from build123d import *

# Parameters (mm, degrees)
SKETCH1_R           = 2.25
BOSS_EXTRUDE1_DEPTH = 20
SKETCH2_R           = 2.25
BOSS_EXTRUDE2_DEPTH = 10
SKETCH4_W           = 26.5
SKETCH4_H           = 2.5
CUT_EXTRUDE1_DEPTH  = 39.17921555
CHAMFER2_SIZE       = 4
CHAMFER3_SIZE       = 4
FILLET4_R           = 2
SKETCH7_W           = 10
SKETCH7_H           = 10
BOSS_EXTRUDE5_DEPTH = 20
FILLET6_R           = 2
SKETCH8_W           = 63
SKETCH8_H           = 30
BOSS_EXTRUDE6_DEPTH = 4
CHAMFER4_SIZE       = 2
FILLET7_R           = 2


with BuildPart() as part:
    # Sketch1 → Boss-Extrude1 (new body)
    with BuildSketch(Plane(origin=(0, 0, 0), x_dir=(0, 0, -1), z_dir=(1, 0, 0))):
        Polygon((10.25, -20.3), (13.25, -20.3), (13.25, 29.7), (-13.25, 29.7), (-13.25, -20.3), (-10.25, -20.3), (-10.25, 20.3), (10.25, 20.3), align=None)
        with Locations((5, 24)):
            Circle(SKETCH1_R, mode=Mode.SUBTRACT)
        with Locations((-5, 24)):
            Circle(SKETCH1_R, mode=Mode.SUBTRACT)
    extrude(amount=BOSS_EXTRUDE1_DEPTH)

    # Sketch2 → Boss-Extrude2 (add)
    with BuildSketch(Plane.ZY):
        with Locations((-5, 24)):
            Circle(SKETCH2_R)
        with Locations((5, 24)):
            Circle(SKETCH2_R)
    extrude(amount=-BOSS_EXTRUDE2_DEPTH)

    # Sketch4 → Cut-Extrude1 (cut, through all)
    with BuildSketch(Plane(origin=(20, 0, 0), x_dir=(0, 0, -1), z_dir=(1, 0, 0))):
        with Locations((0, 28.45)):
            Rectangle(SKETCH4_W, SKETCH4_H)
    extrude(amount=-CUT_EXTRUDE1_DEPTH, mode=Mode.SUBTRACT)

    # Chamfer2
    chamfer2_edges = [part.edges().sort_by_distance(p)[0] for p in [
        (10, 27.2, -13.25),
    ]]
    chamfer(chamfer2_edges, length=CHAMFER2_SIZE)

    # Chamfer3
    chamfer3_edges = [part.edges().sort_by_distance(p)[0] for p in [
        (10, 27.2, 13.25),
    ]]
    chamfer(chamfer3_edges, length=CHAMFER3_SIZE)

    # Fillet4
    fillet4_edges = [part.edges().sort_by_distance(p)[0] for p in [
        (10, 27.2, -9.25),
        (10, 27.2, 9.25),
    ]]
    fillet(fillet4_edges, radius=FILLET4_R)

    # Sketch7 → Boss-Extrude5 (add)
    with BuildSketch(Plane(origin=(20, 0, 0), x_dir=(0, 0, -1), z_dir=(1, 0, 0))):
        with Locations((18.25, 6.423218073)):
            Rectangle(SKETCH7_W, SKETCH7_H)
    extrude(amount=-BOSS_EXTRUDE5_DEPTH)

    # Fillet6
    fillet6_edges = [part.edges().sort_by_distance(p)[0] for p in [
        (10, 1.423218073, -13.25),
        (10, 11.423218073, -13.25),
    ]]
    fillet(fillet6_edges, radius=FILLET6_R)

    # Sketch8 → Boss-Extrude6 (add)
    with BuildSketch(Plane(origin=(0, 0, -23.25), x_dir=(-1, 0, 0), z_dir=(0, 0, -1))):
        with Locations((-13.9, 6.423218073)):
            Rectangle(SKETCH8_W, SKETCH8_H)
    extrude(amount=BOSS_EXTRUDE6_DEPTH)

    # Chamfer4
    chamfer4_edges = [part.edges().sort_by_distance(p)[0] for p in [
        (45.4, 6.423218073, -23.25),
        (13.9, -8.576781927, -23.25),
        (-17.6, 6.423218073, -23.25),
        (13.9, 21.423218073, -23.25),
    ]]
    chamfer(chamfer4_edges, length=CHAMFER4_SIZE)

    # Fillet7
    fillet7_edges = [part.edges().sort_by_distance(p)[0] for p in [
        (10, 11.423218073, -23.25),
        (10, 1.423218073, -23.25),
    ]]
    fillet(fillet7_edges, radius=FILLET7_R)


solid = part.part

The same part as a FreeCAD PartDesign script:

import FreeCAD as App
import Part
import Sketcher
Q = App.Units.Quantity


def edges_at(feature, points):
    """Names of the edges that pass closest to the given points."""
    edges = feature.Shape.Edges
    near = lambda p: min(range(len(edges)), key=lambda i: edges[i].distToShape(Part.Vertex(*p))[0])
    return sorted({f"Edge{near(p) + 1}" for p in points})

doc = App.newDocument("Part")
body = doc.addObject("PartDesign::Body", "Body")

# Sketch on YZ plane
sketch1 = body.newObject("Sketcher::SketchObject", "Sketch")
sketch1.AttachmentSupport = (doc.getObject("YZ_Plane"), [""])
sketch1.MapMode = "FlatFace"
sketch1.addGeometry([
    Part.LineSegment(App.Vector(-20.3, -10.25, 0), App.Vector(-20.3, -13.25, 0)),  # 0
    Part.LineSegment(App.Vector(-20.3, -13.25, 0), App.Vector(29.7, -13.25, 0)),  # 1
    Part.LineSegment(App.Vector(29.7, -13.25, 0), App.Vector(29.7, 13.25, 0)),  # 2
    Part.LineSegment(App.Vector(29.7, 13.25, 0), App.Vector(-20.3, 13.25, 0)),  # 3
    Part.LineSegment(App.Vector(-20.3, 13.25, 0), App.Vector(-20.3, 10.25, 0)),  # 4
    Part.LineSegment(App.Vector(-20.3, 10.25, 0), App.Vector(20.3, 10.25, 0)),  # 5
    Part.LineSegment(App.Vector(20.3, 10.25, 0), App.Vector(20.3, -10.25, 0)),  # 6
    Part.LineSegment(App.Vector(20.3, -10.25, 0), App.Vector(-20.3, -10.25, 0)),  # 7
    Part.Circle(App.Vector(24, 5, 0), App.Vector(0, 0, 1), 2.25),  # 8
    Part.Circle(App.Vector(24, -5, 0), App.Vector(0, 0, 1), 2.25),  # 9
], False)
sketch1.addConstraint([
    Sketcher.Constraint("Coincident", 0, 2, 1, 1),
    Sketcher.Constraint("Coincident", 1, 2, 2, 1),
    Sketcher.Constraint("Coincident", 2, 2, 3, 1),
    Sketcher.Constraint("Coincident", 3, 2, 4, 1),
    Sketcher.Constraint("Coincident", 4, 2, 5, 1),
    Sketcher.Constraint("Coincident", 5, 2, 6, 1),
    Sketcher.Constraint("Coincident", 6, 2, 7, 1),
    Sketcher.Constraint("Coincident", 7, 2, 0, 1),
    Sketcher.Constraint("Vertical", 0),
    Sketcher.Constraint("Horizontal", 1),
    Sketcher.Constraint("Vertical", 2),
    Sketcher.Constraint("Horizontal", 3),
    Sketcher.Constraint("Vertical", 4),
    Sketcher.Constraint("Horizontal", 5),
    Sketcher.Constraint("Vertical", 6),
    Sketcher.Constraint("Horizontal", 7),
    Sketcher.Constraint("Equal", 8, 9),
    Sketcher.Constraint("Symmetric", 4, 2, 6, 2, -1, 1),
    Sketcher.Constraint("Symmetric", 8, 3, 9, 3, -1),
    Sketcher.Constraint("Symmetric", 0, 2, 3, 2, -1),
    Sketcher.Constraint("Diameter", 8, Q("4.5 mm")),
    Sketcher.Constraint("DistanceX", 1, 1, 1, 2, Q("50 mm")),
    Sketcher.Constraint("DistanceY", 0, 2, 0, 1, Q("3 mm")),
    Sketcher.Constraint("DistanceX", 5, 1, 5, 2, Q("40.6 mm")),
    Sketcher.Constraint("DistanceY", 2, 1, 2, 2, Q("26.5 mm")),
    Sketcher.Constraint("DistanceX", -1, 1, 8, 3, Q("24 mm")),
    Sketcher.Constraint("DistanceY", -1, 1, 8, 3, Q("5 mm")),
])
pad1 = body.newObject("PartDesign::Pad", "Pad")
pad1.Profile = sketch1
pad1.Length = 20

# Sketch on YZ plane
sketch2 = body.newObject("Sketcher::SketchObject", "Sketch001")
sketch2.AttachmentSupport = (doc.getObject("YZ_Plane"), [""])
sketch2.MapMode = "FlatFace"
sketch2.addGeometry([
    Part.Circle(App.Vector(24, -5, 0), App.Vector(0, 0, 1), 2.25),
    Part.Circle(App.Vector(24, 5, 0), App.Vector(0, 0, 1), 2.25),
], False)
sketch2.addConstraint([
    Sketcher.Constraint("Equal", 0, 1),
    Sketcher.Constraint("Symmetric", 0, 3, 1, 3, -1),
    Sketcher.Constraint("Diameter", 0, Q("4.5 mm")),
    Sketcher.Constraint("DistanceX", -1, 1, 0, 3, Q("24 mm")),
    Sketcher.Constraint("DistanceY", 0, 3, -1, 1, Q("5 mm")),
])
pad2 = body.newObject("PartDesign::Pad", "Pad001")
pad2.Profile = sketch2
pad2.Length = 10

# Sketch on YZ plane
sketch3 = body.newObject("Sketcher::SketchObject", "Sketch002")
sketch3.AttachmentSupport = (doc.getObject("YZ_Plane"), [""])
sketch3.MapMode = "FlatFace"
sketch3.AttachmentOffset = App.Placement(App.Vector(0, 0, 20), App.Rotation())
sketch3.addGeometry([
    Part.LineSegment(App.Vector(29.7, 13.25, 0), App.Vector(27.2, 13.25, 0)),
    Part.LineSegment(App.Vector(27.2, 13.25, 0), App.Vector(27.2, -13.25, 0)),
    Part.LineSegment(App.Vector(27.2, -13.25, 0), App.Vector(29.7, -13.25, 0)),
    Part.LineSegment(App.Vector(29.7, -13.25, 0), App.Vector(29.7, 13.25, 0)),
], False)
sketch3.addConstraint([
    Sketcher.Constraint("Coincident", 0, 2, 1, 1),
    Sketcher.Constraint("Coincident", 1, 2, 2, 1),
    Sketcher.Constraint("Coincident", 2, 2, 3, 1),
    Sketcher.Constraint("Coincident", 3, 2, 0, 1),
    Sketcher.Constraint("Horizontal", 0),
    Sketcher.Constraint("Vertical", 1),
    Sketcher.Constraint("Horizontal", 2),
    Sketcher.Constraint("Vertical", 3),
    Sketcher.Constraint("DistanceX", 0, 2, 0, 1, Q("2.5 mm")),
    Sketcher.Constraint("DistanceY", 1, 2, 1, 1, Q("26.5 mm")),
    Sketcher.Constraint("DistanceX", -1, 1, 0, 2, Q("27.2 mm")),
    Sketcher.Constraint("DistanceY", -1, 1, 0, 2, Q("13.25 mm")),
])
pocket1 = body.newObject("PartDesign::Pocket", "Pocket")
pocket1.Profile = sketch3
pocket1.Type = "ThroughAll"
doc.recompute()

chamfer = body.newObject("PartDesign::Chamfer", "Chamfer")
chamfer.Base = (pocket1, edges_at(pocket1, [(10, 27.2, -13.25)]))
chamfer.Size = 4
doc.recompute()

chamfer2 = body.newObject("PartDesign::Chamfer", "Chamfer001")
chamfer2.Base = (chamfer, edges_at(chamfer, [(10, 27.2, 13.25)]))
chamfer2.Size = 4
doc.recompute()

fillet = body.newObject("PartDesign::Fillet", "Fillet")
fillet.Base = (chamfer2, edges_at(chamfer2, [(10, 27.2, -9.25), (10, 27.2, 9.25)]))
fillet.Radius = 2

# Sketch on YZ plane
sketch4 = body.newObject("Sketcher::SketchObject", "Sketch003")
sketch4.AttachmentSupport = (doc.getObject("YZ_Plane"), [""])
sketch4.MapMode = "FlatFace"
sketch4.AttachmentOffset = App.Placement(App.Vector(0, 0, 20), App.Rotation())
sketch4.addGeometry([
    Part.LineSegment(App.Vector(11.423218, -13.25, 0), App.Vector(1.423218, -13.25, 0)),
    Part.LineSegment(App.Vector(1.423218, -13.25, 0), App.Vector(1.423218, -23.25, 0)),
    Part.LineSegment(App.Vector(1.423218, -23.25, 0), App.Vector(11.423218, -23.25, 0)),
    Part.LineSegment(App.Vector(11.423218, -23.25, 0), App.Vector(11.423218, -13.25, 0)),
], False)
sketch4.addConstraint([
    Sketcher.Constraint("Coincident", 0, 2, 1, 1),
    Sketcher.Constraint("Coincident", 1, 2, 2, 1),
    Sketcher.Constraint("Coincident", 2, 2, 3, 1),
    Sketcher.Constraint("Coincident", 3, 2, 0, 1),
    Sketcher.Constraint("Horizontal", 0),
    Sketcher.Constraint("Vertical", 1),
    Sketcher.Constraint("Horizontal", 2),
    Sketcher.Constraint("Vertical", 3),
    Sketcher.Constraint("Equal", 2, 1),
    Sketcher.Constraint("DistanceX", 0, 2, 0, 1, Q("10 mm")),
    Sketcher.Constraint("DistanceY", 0, 2, -1, 1, Q("13.25 mm")),
    Sketcher.Constraint("DistanceX", -1, 1, 0, 2, Q("1.423218 mm")),
])
pad3 = body.newObject("PartDesign::Pad", "Pad002")
pad3.Profile = sketch4
pad3.Length = 20
pad3.Reversed = True
doc.recompute()

fillet2 = body.newObject("PartDesign::Fillet", "Fillet001")
fillet2.Base = (pad3, edges_at(pad3, [(10, 1.423, -13.25), (10, 11.423, -13.25)]))
fillet2.Radius = 2

# Sketch on XY plane
sketch5 = body.newObject("Sketcher::SketchObject", "Sketch004")
sketch5.AttachmentSupport = (doc.getObject("XY_Plane"), [""])
sketch5.MapMode = "FlatFace"
sketch5.AttachmentOffset = App.Placement(App.Vector(0, 0, -23.25), App.Rotation())
sketch5.addGeometry([
    Part.LineSegment(App.Vector(45.4, 21.423218, 0), App.Vector(45.4, -8.576782, 0)),
    Part.LineSegment(App.Vector(45.4, -8.576782, 0), App.Vector(-17.6, -8.576782, 0)),
    Part.LineSegment(App.Vector(-17.6, -8.576782, 0), App.Vector(-17.6, 21.423218, 0)),
    Part.LineSegment(App.Vector(-17.6, 21.423218, 0), App.Vector(45.4, 21.423218, 0)),
], False)
sketch5.addConstraint([
    Sketcher.Constraint("Coincident", 0, 2, 1, 1),
    Sketcher.Constraint("Coincident", 1, 2, 2, 1),
    Sketcher.Constraint("Coincident", 2, 2, 3, 1),
    Sketcher.Constraint("Coincident", 3, 2, 0, 1),
    Sketcher.Constraint("Vertical", 0),
    Sketcher.Constraint("Horizontal", 1),
    Sketcher.Constraint("Vertical", 2),
    Sketcher.Constraint("Horizontal", 3),
    Sketcher.Constraint("DistanceX", 1, 2, 1, 1, Q("63 mm")),
    Sketcher.Constraint("DistanceY", 0, 2, 0, 1, Q("30 mm")),
    Sketcher.Constraint("DistanceX", -1, 1, 0, 2, Q("45.4 mm")),
    Sketcher.Constraint("DistanceY", 0, 2, -1, 1, Q("8.576782 mm")),
])
pad4 = body.newObject("PartDesign::Pad", "Pad003")
pad4.Profile = sketch5
pad4.Length = 4
pad4.Reversed = True
doc.recompute()

chamfer3 = body.newObject("PartDesign::Chamfer", "Chamfer002")
chamfer3.Base = (pad4, edges_at(pad4, [
    (45.4, 6.423, -23.25),
    (13.9, -8.577, -23.25),
    (-17.6, 6.423, -23.25),
    (13.9, 21.423, -23.25),
]))
chamfer3.Size = 2
doc.recompute()

fillet3 = body.newObject("PartDesign::Fillet", "Fillet002")
fillet3.Base = (chamfer3, edges_at(chamfer3, [(10, 11.423, -23.25), (10, 1.423, -23.25)]))
fillet3.Radius = 2

doc.recompute()
